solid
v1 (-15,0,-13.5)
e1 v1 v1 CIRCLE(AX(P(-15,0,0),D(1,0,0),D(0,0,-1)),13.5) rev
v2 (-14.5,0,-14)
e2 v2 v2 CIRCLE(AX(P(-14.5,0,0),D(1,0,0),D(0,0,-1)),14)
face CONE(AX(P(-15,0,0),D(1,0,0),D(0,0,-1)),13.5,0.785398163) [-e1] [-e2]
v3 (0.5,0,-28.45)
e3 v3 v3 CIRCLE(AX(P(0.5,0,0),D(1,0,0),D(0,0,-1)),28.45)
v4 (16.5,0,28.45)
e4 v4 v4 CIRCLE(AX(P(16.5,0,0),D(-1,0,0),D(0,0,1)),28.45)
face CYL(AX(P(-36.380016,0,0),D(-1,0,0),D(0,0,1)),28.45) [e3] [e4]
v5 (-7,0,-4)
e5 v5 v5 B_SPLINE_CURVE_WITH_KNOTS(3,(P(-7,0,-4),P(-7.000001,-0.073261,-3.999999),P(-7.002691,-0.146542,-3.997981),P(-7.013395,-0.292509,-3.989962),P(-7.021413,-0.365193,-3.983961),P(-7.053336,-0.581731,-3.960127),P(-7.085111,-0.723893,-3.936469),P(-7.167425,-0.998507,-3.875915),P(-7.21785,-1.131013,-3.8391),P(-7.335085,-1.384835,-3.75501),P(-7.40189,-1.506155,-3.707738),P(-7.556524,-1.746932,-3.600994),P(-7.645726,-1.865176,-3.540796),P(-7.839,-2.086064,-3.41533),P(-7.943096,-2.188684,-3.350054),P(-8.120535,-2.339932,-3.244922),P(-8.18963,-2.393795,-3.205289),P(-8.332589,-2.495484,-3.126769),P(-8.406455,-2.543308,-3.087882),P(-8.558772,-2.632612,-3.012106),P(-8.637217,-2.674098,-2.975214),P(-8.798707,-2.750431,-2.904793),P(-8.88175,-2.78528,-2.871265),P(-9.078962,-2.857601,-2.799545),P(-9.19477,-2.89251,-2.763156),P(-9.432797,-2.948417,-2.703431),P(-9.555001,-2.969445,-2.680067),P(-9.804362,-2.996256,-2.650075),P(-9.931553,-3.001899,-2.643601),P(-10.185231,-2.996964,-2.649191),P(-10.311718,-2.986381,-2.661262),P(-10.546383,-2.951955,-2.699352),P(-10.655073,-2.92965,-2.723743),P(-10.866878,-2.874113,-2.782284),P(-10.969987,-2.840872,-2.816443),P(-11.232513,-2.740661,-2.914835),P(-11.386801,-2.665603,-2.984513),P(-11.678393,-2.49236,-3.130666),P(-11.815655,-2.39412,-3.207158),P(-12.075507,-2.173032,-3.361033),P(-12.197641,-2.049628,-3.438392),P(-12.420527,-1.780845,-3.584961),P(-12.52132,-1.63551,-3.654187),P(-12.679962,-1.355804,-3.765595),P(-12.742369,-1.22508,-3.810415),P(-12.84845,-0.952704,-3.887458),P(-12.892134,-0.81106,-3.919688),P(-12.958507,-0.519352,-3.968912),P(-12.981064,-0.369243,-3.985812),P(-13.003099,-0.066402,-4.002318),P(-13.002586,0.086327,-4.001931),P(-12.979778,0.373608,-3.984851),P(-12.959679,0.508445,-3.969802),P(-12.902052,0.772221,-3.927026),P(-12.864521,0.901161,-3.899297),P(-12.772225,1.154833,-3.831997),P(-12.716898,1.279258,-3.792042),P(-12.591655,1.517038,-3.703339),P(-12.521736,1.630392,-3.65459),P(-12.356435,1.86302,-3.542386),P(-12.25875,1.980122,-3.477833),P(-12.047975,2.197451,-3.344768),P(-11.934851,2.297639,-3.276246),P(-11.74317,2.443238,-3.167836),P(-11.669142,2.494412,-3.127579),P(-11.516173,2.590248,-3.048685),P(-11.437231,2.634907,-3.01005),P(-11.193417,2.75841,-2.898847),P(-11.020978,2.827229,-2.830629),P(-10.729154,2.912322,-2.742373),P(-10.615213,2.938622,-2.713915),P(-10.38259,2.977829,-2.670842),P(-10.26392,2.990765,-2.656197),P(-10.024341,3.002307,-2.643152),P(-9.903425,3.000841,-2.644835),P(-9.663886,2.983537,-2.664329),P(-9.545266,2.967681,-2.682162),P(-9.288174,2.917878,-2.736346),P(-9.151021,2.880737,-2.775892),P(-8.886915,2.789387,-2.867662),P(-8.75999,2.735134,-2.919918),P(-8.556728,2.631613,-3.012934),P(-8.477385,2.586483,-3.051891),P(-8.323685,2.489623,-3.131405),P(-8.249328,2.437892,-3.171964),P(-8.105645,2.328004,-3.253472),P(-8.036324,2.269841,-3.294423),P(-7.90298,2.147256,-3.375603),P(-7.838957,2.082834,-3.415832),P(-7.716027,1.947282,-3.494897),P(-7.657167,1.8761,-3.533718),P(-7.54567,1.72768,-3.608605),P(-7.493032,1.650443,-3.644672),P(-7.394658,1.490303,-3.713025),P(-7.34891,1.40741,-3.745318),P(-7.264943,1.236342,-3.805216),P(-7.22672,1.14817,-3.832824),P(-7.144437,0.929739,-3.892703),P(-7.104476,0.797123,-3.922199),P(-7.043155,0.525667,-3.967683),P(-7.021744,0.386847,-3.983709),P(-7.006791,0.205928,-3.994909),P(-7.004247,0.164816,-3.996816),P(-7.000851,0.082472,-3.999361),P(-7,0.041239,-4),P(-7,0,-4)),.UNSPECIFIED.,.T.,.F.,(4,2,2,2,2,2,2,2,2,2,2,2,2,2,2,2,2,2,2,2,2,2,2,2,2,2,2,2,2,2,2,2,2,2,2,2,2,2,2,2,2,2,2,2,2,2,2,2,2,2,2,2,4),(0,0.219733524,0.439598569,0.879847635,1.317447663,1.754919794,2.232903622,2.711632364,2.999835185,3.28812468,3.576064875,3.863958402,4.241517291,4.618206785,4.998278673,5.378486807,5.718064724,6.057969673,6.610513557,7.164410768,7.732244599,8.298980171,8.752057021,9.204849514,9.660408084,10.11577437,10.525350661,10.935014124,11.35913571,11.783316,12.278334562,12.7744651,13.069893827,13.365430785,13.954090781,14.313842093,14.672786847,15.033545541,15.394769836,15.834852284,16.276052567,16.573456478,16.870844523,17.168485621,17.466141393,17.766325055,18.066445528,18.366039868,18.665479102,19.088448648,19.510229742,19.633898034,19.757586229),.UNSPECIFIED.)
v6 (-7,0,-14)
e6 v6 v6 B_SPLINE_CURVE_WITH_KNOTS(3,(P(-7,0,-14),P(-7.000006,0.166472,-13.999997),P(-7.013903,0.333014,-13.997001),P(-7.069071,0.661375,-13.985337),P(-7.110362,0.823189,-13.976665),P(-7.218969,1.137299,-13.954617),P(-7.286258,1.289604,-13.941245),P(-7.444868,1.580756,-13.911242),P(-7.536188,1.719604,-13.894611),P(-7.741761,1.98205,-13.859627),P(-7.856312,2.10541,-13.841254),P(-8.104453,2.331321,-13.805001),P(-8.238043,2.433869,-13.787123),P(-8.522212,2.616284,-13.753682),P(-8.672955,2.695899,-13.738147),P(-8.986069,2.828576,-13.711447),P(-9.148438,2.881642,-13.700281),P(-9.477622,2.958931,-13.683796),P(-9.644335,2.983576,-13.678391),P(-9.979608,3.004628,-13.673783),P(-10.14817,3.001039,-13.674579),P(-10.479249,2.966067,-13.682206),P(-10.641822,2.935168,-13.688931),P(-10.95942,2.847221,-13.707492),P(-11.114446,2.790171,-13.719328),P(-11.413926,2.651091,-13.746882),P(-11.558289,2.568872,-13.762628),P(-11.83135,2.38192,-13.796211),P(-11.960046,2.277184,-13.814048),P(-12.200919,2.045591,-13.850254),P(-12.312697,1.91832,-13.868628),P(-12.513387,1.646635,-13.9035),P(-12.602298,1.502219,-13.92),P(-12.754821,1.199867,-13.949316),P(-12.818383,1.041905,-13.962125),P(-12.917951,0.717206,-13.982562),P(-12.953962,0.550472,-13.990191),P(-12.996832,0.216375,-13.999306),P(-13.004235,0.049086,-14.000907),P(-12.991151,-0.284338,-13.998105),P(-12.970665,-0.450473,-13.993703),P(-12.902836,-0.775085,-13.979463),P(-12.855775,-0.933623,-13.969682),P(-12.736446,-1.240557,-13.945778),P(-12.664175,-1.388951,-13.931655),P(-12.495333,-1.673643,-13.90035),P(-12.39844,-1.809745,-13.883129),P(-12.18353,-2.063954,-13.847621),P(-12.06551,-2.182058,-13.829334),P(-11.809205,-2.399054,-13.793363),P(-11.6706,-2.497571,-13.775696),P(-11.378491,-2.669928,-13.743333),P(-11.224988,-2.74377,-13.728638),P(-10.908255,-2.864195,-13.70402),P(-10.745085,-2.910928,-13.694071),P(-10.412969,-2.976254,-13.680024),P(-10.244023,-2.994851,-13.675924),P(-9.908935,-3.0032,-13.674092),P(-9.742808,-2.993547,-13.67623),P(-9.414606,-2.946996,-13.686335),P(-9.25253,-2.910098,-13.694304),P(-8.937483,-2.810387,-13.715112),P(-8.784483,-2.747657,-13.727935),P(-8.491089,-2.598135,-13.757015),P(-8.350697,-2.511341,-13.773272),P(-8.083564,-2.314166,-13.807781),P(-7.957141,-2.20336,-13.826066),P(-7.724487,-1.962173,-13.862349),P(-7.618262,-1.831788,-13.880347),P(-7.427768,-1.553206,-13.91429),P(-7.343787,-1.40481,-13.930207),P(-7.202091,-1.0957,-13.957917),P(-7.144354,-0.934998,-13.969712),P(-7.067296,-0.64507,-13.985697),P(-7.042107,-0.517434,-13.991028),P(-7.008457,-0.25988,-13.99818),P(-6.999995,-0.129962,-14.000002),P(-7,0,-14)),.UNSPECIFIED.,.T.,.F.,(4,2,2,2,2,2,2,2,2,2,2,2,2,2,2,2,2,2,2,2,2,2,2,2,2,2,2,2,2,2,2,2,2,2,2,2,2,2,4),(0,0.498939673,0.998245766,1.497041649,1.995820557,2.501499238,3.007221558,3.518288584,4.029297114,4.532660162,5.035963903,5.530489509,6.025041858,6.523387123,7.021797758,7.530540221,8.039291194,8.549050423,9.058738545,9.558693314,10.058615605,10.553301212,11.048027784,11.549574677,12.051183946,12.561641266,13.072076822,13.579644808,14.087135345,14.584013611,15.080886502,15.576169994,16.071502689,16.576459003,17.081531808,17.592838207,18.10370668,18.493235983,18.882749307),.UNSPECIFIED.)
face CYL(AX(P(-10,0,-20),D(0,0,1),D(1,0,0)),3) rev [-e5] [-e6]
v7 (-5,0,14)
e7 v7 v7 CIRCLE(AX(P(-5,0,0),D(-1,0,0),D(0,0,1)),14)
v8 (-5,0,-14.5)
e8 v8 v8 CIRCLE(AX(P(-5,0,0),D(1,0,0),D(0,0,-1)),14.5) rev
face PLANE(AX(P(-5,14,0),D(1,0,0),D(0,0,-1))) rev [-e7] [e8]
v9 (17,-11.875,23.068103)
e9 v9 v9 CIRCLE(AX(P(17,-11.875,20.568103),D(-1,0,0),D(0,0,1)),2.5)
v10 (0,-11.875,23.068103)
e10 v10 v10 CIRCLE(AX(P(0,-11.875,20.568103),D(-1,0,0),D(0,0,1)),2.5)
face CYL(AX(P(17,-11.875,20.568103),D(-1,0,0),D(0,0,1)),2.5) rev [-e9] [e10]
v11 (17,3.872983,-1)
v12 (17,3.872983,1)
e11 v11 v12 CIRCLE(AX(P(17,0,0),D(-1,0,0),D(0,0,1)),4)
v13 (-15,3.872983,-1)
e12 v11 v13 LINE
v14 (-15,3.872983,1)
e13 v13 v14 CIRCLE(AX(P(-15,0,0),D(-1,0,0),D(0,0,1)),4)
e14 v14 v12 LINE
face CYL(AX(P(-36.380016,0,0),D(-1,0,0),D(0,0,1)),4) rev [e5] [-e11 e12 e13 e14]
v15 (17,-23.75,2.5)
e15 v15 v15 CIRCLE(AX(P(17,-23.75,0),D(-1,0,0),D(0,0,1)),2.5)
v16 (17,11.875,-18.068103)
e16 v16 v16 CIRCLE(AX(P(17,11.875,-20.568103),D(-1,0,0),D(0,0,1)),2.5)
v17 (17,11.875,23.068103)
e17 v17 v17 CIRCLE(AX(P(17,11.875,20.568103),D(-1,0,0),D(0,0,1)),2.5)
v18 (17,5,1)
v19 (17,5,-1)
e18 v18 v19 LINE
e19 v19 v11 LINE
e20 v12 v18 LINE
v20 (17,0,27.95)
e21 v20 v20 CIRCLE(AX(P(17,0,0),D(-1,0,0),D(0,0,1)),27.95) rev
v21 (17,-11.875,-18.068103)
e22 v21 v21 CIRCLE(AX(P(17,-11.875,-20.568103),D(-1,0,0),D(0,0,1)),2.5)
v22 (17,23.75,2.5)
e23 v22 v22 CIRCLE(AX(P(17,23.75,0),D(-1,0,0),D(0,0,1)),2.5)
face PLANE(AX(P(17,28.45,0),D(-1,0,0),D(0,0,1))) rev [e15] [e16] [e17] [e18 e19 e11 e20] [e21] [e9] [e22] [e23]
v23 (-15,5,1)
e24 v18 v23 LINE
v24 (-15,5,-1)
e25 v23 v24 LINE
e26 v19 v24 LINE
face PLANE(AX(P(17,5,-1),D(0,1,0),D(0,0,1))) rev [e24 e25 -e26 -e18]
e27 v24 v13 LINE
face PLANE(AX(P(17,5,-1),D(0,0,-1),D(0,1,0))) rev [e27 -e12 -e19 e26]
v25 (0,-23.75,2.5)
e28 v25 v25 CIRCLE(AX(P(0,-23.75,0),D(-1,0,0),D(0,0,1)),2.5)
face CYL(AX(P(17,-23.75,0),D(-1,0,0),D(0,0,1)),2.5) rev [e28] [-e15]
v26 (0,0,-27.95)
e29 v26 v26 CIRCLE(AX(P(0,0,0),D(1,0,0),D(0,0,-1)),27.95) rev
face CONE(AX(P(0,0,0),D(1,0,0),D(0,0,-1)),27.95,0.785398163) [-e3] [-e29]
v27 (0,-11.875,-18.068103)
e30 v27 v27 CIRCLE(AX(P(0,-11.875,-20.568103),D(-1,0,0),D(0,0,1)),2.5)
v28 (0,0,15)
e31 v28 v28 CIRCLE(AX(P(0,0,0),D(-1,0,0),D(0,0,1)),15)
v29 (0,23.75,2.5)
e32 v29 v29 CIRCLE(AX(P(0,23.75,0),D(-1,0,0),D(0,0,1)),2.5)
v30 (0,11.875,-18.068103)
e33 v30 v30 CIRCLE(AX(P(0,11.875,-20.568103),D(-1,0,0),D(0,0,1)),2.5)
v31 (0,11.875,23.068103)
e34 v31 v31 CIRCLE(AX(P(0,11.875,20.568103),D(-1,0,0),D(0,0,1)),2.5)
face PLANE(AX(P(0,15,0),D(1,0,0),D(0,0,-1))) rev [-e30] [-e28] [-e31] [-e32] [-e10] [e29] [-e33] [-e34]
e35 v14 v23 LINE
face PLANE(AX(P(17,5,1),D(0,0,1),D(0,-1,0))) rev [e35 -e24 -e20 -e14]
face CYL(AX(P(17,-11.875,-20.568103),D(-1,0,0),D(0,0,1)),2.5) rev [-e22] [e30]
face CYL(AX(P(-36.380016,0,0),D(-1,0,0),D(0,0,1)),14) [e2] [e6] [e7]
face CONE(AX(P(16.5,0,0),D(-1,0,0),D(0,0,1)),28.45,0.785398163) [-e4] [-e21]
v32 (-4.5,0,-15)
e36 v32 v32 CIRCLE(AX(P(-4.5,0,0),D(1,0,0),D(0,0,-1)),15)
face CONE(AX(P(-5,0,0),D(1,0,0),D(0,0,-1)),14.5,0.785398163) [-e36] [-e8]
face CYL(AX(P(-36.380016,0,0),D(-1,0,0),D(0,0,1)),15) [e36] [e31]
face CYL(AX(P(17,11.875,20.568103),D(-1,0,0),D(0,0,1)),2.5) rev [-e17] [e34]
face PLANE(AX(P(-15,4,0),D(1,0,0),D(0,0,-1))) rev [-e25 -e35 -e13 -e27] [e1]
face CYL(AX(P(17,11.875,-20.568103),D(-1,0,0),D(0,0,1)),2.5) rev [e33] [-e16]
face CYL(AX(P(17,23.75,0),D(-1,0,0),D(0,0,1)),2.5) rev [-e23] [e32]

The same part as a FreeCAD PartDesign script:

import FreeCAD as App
import Part
import Sketcher
from FreeCAD import Vector
Q = App.Units.Quantity


def edges_at(feature, points):
    """Names of the edges that pass closest to the given points."""
    edges = feature.Shape.Edges
    near = lambda p: min(range(len(edges)), key=lambda i: edges[i].distToShape(Part.Vertex(*p))[0])
    return sorted({f"Edge{near(p) + 1}" for p in points})

doc = App.newDocument("Part")
body = doc.addObject("PartDesign::Body", "Body")

# Sketch on XY plane
sketch1 = doc.addObject("Sketcher::SketchObject", "Sketch")
body.addObject(sketch1)
sketch1.AttachmentSupport = (doc.XY_Plane, [""])
sketch1.MapMode = "FlatFace"
sketch1.addGeometry([
    Part.LineSegment(Vector(-15, 14, 0), Vector(-15, 4, 0)),  # 0
    Part.LineSegment(Vector(-15, 4, 0), Vector(17, 4, 0)),  # 1
    Part.LineSegment(Vector(17, 4, 0), Vector(17, 28.4, 0)),  # 2
    Part.LineSegment(Vector(17, 28.4, 0), Vector(0, 28.4, 0)),  # 3
    Part.LineSegment(Vector(0, 28.4, 0), Vector(0, 15, 0)),  # 4
    Part.LineSegment(Vector(0, 15, 0), Vector(-5, 15, 0)),  # 5
    Part.LineSegment(Vector(-5, 15, 0), Vector(-5, 14, 0)),  # 6
    Part.LineSegment(Vector(-5, 14, 0), Vector(-15, 14, 0)),  # 7
], False)
sketch1.addConstraint([
    Sketcher.Constraint("Coincident", 0, 2, 1, 1),
    Sketcher.Constraint("Coincident", 1, 2, 2, 1),
    Sketcher.Constraint("Coincident", 2, 2, 3, 1),
    Sketcher.Constraint("Coincident", 3, 2, 4, 1),
    Sketcher.Constraint("Coincident", 4, 2, 5, 1),
    Sketcher.Constraint("Coincident", 5, 2, 6, 1),
    Sketcher.Constraint("Coincident", 6, 2, 7, 1),
    Sketcher.Constraint("Coincident", 7, 2, 0, 1),
    Sketcher.Constraint("Vertical", 0),
    Sketcher.Constraint("Horizontal", 1),
    Sketcher.Constraint("Vertical", 2),
    Sketcher.Constraint("Horizontal", 3),
    Sketcher.Constraint("Vertical", 4),
    Sketcher.Constraint("Horizontal", 5),
    Sketcher.Constraint("Vertical", 6),
    Sketcher.Constraint("Horizontal", 7),
    Sketcher.Constraint("PointOnObject", 3, 2, -2),
    Sketcher.Constraint("Equal", 7, 0),
    Sketcher.Constraint("DistanceX", 1, 1, 1, 2, Q("32 mm")),
    Sketcher.Constraint("DistanceX", 3, 2, 3, 1, Q("17 mm")),
    Sketcher.Constraint("DistanceX", 5, 2, 5, 1, Q("5 mm")),
    Sketcher.Constraint("DistanceY", 6, 2, 6, 1, Q("1 mm")),
    Sketcher.Constraint("DistanceY", -1, 1, 0, 2, Q("4 mm")),
    Sketcher.Constraint("DistanceY", 2, 1, 2, 2, Q("24.45 mm")),
])
revolution = doc.addObject("PartDesign::Revolution", "Revolution")
body.addObject(revolution)
revolution.Profile = sketch1
revolution.ReferenceAxis = (sketch1, ["H_Axis"])
revolution.Angle = 360

# Sketch on YZ plane
sketch2 = doc.addObject("Sketcher::SketchObject", "Sketch001")
body.addObject(sketch2)
sketch2.AttachmentSupport = (doc.YZ_Plane, [""])
sketch2.MapMode = "FlatFace"
sketch2.addGeometry([
    Part.Circle(Vector(23.8, 0, 0), Vector(0, 0, 1), 2.5),  # 0
    Part.Circle(Vector(11.9, 20.6, 0), Vector(0, 0, 1), 2.5),  # 1
    Part.Circle(Vector(-11.9, 20.6, 0), Vector(0, 0, 1), 2.5),  # 2
    Part.Circle(Vector(-23.8, 0, 0), Vector(0, 0, 1), 2.5),  # 3
    Part.Circle(Vector(-11.9, -20.6, 0), Vector(0, 0, 1), 2.5),  # 4
    Part.Circle(Vector(11.9, -20.6, 0), Vector(0, 0, 1), 2.5),  # 5
], False)
sketch2.addConstraint([
    Sketcher.Constraint("Equal", 0, 1),
    Sketcher.Constraint("Equal", 1, 2),
    Sketcher.Constraint("Equal", 2, 3),
    Sketcher.Constraint("Equal", 3, 4),
    Sketcher.Constraint("Equal", 4, 5),
    Sketcher.Constraint("Symmetric", 0, 3, 3, 3, -1, 1),
    Sketcher.Constraint("Symmetric", 1, 3, 4, 3, -1, 1),
    Sketcher.Constraint("Symmetric", 2, 3, 5, 3, -1, 1),
    Sketcher.Constraint("Symmetric", 1, 3, 2, 3, -2),
    Sketcher.Constraint("PointOnObject", 0, 3, -1),
    Sketcher.Constraint("Diameter", 0, Q("5 mm")),
    Sketcher.Constraint("DistanceX", 3, 3, 0, 3, Q("47.5 mm")),
    Sketcher.Constraint("DistanceX", 2, 3, 1, 3, Q("23.75 mm")),
    Sketcher.Constraint("DistanceY", -1, 1, 1, 3, Q("20.568103 mm")),
])
pocket1 = doc.addObject("PartDesign::Pocket", "Pocket")
body.addObject(pocket1)
pocket1.Profile = sketch2
pocket1.Type = "ThroughAll"
pocket1.Reversed = True

# Sketch on YZ plane
sketch3 = doc.addObject("Sketcher::SketchObject", "Sketch002")
body.addObject(sketch3)
sketch3.AttachmentSupport = (doc.YZ_Plane, [""])
sketch3.MapMode = "FlatFace"
sketch3.AttachmentOffset = App.Placement(Vector(0, 0, -15), App.Rotation())
sketch3.addGeometry([
    Part.LineSegment(Vector(5, -1, 0), Vector(2.3, -1, 0)),
    Part.LineSegment(Vector(2.3, -1, 0), Vector(2.3, 1, 0)),
    Part.LineSegment(Vector(2.3, 1, 0), Vector(5, 1, 0)),
    Part.LineSegment(Vector(5, 1, 0), Vector(5, -1, 0)),
], False)
sketch3.addConstraint([
    Sketcher.Constraint("Coincident", 0, 2, 1, 1),
    Sketcher.Constraint("Coincident", 1, 2, 2, 1),
    Sketcher.Constraint("Coincident", 2, 2, 3, 1),
    Sketcher.Constraint("Coincident", 3, 2, 0, 1),
    Sketcher.Constraint("Horizontal", 0),
    Sketcher.Constraint("Vertical", 1),
    Sketcher.Constraint("Horizontal", 2),
    Sketcher.Constraint("Vertical", 3),
    Sketcher.Constraint("DistanceY", 1, 1, 1, 2, Q("2 mm")),
    Sketcher.Constraint("DistanceY", 0, 2, -1, 1, Q("1 mm")),
    Sketcher.Constraint("DistanceX", -1, 1, 2, 2, Q("5 mm")),
    Sketcher.Constraint("DistanceX", 0, 2, 0, 1, Q("2.737755 mm")),
])
pocket2 = doc.addObject("PartDesign::Pocket", "Pocket001")
body.addObject(pocket2)
pocket2.Profile = sketch3
pocket2.Type = "ThroughAll"
pocket2.Reversed = True

# Sketch on XY plane
sketch4 = doc.addObject("Sketcher::SketchObject", "Sketch003")
body.addObject(sketch4)
sketch4.AttachmentSupport = (doc.XY_Plane, [""])
sketch4.MapMode = "FlatFace"
sketch4.addGeometry(Part.Circle(Vector(-10, 0, 0), Vector(0, 0, 1), 3), False)
sketch4.addConstraint([
    Sketcher.Constraint("PointOnObject", 0, 3, -1),
    Sketcher.Constraint("Diameter", 0, Q("6 mm")),
    Sketcher.Constraint("DistanceX", 0, 3, -1, 1, Q("10 mm")),
])
pocket3 = doc.addObject("PartDesign::Pocket", "Pocket002")
body.addObject(pocket3)
pocket3.Profile = sketch4
pocket3.Length = 20
doc.recompute()

chamfer = doc.addObject("PartDesign::Chamfer", "Chamfer")
body.addObject(chamfer)
chamfer.Base = (pocket3, edges_at(pocket3, [
    (17, 0, -28.45),
    (0, 0, -28.45),
    (-5, 0, -15),
    (-15, 0, -14),
]))
chamfer.Size = 0.5

doc.recompute()
